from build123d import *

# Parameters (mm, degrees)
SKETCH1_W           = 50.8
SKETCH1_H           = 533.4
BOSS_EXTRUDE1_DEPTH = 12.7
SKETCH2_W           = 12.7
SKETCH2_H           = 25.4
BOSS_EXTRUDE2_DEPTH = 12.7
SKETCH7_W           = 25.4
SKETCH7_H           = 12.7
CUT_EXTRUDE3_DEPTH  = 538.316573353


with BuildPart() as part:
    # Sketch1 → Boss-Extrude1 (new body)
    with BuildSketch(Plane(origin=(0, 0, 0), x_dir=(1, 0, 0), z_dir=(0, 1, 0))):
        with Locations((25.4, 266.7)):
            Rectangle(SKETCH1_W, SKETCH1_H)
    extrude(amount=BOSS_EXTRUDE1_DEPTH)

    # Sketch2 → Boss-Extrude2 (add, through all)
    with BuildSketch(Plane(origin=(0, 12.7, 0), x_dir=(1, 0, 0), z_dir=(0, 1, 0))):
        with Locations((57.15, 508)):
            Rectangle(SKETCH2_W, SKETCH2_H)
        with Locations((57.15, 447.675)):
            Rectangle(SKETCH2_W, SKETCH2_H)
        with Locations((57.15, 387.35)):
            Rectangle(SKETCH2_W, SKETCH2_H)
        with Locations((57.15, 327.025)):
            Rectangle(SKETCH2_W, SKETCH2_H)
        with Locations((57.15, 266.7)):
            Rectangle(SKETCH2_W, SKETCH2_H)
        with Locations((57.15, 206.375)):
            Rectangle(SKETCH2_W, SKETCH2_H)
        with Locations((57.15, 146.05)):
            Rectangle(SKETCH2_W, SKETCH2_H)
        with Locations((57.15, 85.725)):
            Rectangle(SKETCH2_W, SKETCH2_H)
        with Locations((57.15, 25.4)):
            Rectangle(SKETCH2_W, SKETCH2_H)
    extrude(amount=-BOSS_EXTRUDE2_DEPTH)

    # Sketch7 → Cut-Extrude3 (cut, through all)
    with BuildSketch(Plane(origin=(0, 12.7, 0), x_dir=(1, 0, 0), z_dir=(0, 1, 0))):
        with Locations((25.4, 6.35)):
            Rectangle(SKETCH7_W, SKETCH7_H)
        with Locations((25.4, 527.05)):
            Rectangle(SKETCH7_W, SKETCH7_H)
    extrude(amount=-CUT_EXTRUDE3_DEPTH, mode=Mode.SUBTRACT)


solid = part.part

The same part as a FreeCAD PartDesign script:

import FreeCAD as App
import Part
import Sketcher
Q = App.Units.Quantity

doc = App.newDocument("Part")
body = doc.addObject("PartDesign::Body", "Body")

sketch1 = body.newObject("Sketcher::SketchObject", "Sketch")
sketch1.AttachmentSupport = (doc.getObject("XZ_Plane"), [""])
sketch1.MapMode = "FlatFace"
sketch1.addGeometry(Part.LineSegment(App.Vector(0, -533, 0), App.Vector(0, 0, 0)), False)
sketch1.addGeometry(Part.LineSegment(App.Vector(0, 0, 0), App.Vector(51, 0, 0)), False)
sketch1.addGeometry(Part.LineSegment(App.Vector(51, 0, 0), App.Vector(51, -533, 0)), False)
sketch1.addGeometry(Part.LineSegment(App.Vector(51, -533, 0), App.Vector(0, -533, 0)), False)
sketch1.addConstraint(Sketcher.Constraint("Coincident", 0, 2, 1, 1))
sketch1.addConstraint(Sketcher.Constraint("Coincident", 1, 2, 2, 1))
sketch1.addConstraint(Sketcher.Constraint("Coincident", 2, 2, 3, 1))
sketch1.addConstraint(Sketcher.Constraint("Coincident", 3, 2, 0, 1))
sketch1.addConstraint(Sketcher.Constraint("Vertical", 0))
sketch1.addConstraint(Sketcher.Constraint("Horizontal", 1))
sketch1.addConstraint(Sketcher.Constraint("Vertical", 2))
sketch1.addConstraint(Sketcher.Constraint("Horizontal", 3))
sketch1.addConstraint(Sketcher.Constraint("Coincident", 0, 2, -1, 1))
sketch1.addConstraint(Sketcher.Constraint("DistanceX", 1, 1, 1, 2, Q("2 in")))
sketch1.addConstraint(Sketcher.Constraint("DistanceY", 0, 1, 0, 2, Q("21 in")))
pad1 = body.newObject("PartDesign::Pad", "Pad")
pad1.Profile = sketch1
pad1.Length = Q("0.5 in")
pad1.Reversed = True

sketch2 = body.newObject("Sketcher::SketchObject", "Sketch001")
sketch2.AttachmentSupport = (doc.getObject("XZ_Plane"), [""])
sketch2.MapMode = "FlatFace"
sketch2.AttachmentOffset = App.Placement(App.Vector(0, 0, -0.5 * 25.4), App.Rotation())
sketch2.addGeometry(Part.LineSegment(App.Vector(51, -521, 0), App.Vector(51, -495, 0)), False)
sketch2.addGeometry(Part.LineSegment(App.Vector(51, -495, 0), App.Vector(64, -495, 0)), False)
sketch2.addGeometry(Part.LineSegment(App.Vector(64, -495, 0), App.Vector(64, -521, 0)), False)
sketch2.addGeometry(Part.LineSegment(App.Vector(64, -521, 0), App.Vector(51, -521, 0)), False)
sketch2.addGeometry(Part.LineSegment(App.Vector(51, -460, 0), App.Vector(51, -435, 0)), False)
sketch2.addGeometry(Part.LineSegment(App.Vector(51, -435, 0), App.Vector(64, -435, 0)), False)
sketch2.addGeometry(Part.LineSegment(App.Vector(64, -435, 0), App.Vector(64, -460, 0)), False)
sketch2.addGeometry(Part.LineSegment(App.Vector(64, -460, 0), App.Vector(51, -460, 0)), False)
sketch2.addGeometry(Part.LineSegment(App.Vector(51, -400, 0), App.Vector(51, -375, 0)), False)
sketch2.addGeometry(Part.LineSegment(App.Vector(51, -375, 0), App.Vector(64, -375, 0)), False)
sketch2.addGeometry(Part.LineSegment(App.Vector(64, -375, 0), App.Vector(64, -400, 0)), False)
sketch2.addGeometry(Part.LineSegment(App.Vector(64, -400, 0), App.Vector(51, -400, 0)), False)
sketch2.addGeometry(Part.LineSegment(App.Vector(51, -340, 0), App.Vector(51, -314, 0)), False)
sketch2.addGeometry(Part.LineSegment(App.Vector(51, -314, 0), App.Vector(64, -314, 0)), False)
sketch2.addGeometry(Part.LineSegment(App.Vector(64, -314, 0), App.Vector(64, -340, 0)), False)
sketch2.addGeometry(Part.LineSegment(App.Vector(64, -340, 0), App.Vector(51, -340, 0)), False)
sketch2.addGeometry(Part.LineSegment(App.Vector(51, -279, 0), App.Vector(51, -254, 0)), False)
sketch2.addGeometry(Part.LineSegment(App.Vector(51, -254, 0), App.Vector(64, -254, 0)), False)
sketch2.addGeometry(Part.LineSegment(App.Vector(64, -254, 0), App.Vector(64, -279, 0)), False)
sketch2.addGeometry(Part.LineSegment(App.Vector(64, -279, 0), App.Vector(51, -279, 0)), False)
sketch2.addGeometry(Part.LineSegment(App.Vector(51, -219, 0), App.Vector(51, -194, 0)), False)
sketch2.addGeometry(Part.LineSegment(App.Vector(51, -194, 0), App.Vector(64, -194, 0)), False)
sketch2.addGeometry(Part.LineSegment(App.Vector(64, -194, 0), App.Vector(64, -219, 0)), False)
sketch2.addGeometry(Part.LineSegment(App.Vector(64, -219, 0), App.Vector(51, -219, 0)), False)
sketch2.addGeometry(Part.LineSegment(App.Vector(51, -159, 0), App.Vector(51, -133, 0)), False)
sketch2.addGeometry(Part.LineSegment(App.Vector(51, -133, 0), App.Vector(64, -133, 0)), False)
sketch2.addGeometry(Part.LineSegment(App.Vector(64, -133, 0), App.Vector(64, -159, 0)), False)
sketch2.addGeometry(Part.LineSegment(App.Vector(64, -159, 0), App.Vector(51, -159, 0)), False)
sketch2.addGeometry(Part.LineSegment(App.Vector(51, -98, 0), App.Vector(51, -73, 0)), False)
sketch2.addGeometry(Part.LineSegment(App.Vector(51, -73, 0), App.Vector(64, -73, 0)), False)
sketch2.addGeometry(Part.LineSegment(App.Vector(64, -73, 0), App.Vector(64, -98, 0)), False)
sketch2.addGeometry(Part.LineSegment(App.Vector(64, -98, 0), App.Vector(51, -98, 0)), False)
sketch2.addGeometry(Part.LineSegment(App.Vector(51, -38, 0), App.Vector(51, -13, 0)), False)
sketch2.addGeometry(Part.LineSegment(App.Vector(51, -13, 0), App.Vector(64, -13, 0)), False)
sketch2.addGeometry(Part.LineSegment(App.Vector(64, -13, 0), App.Vector(64, -38, 0)), False)
sketch2.addGeometry(Part.LineSegment(App.Vector(64, -38, 0), App.Vector(51, -38, 0)), False)
sketch2.addConstraint(Sketcher.Constraint("Coincident", 0, 2, 1, 1))
sketch2.addConstraint(Sketcher.Constraint("Coincident", 1, 2, 2, 1))
sketch2.addConstraint(Sketcher.Constraint("Coincident", 2, 2, 3, 1))
sketch2.addConstraint(Sketcher.Constraint("Coincident", 3, 2, 0, 1))
sketch2.addConstraint(Sketcher.Constraint("Coincident", 4, 2, 5, 1))
sketch2.addConstraint(Sketcher.Constraint("Coincident", 5, 2, 6, 1))
sketch2.addConstraint(Sketcher.Constraint("Coincident", 6, 2, 7, 1))
sketch2.addConstraint(Sketcher.Constraint("Coincident", 7, 2, 4, 1))
sketch2.addConstraint(Sketcher.Constraint("Coincident", 8, 2, 9, 1))
sketch2.addConstraint(Sketcher.Constraint("Coincident", 9, 2, 10, 1))
sketch2.addConstraint(Sketcher.Constraint("Coincident", 10, 2, 11, 1))
sketch2.addConstraint(Sketcher.Constraint("Coincident", 11, 2, 8, 1))
sketch2.addConstraint(Sketcher.Constraint("Coincident", 12, 2, 13, 1))
sketch2.addConstraint(Sketcher.Constraint("Coincident", 13, 2, 14, 1))
sketch2.addConstraint(Sketcher.Constraint("Coincident", 14, 2, 15, 1))
sketch2.addConstraint(Sketcher.Constraint("Coincident", 15, 2, 12, 1))
sketch2.addConstraint(Sketcher.Constraint("Coincident", 16, 2, 17, 1))
sketch2.addConstraint(Sketcher.Constraint("Coincident", 17, 2, 18, 1))
sketch2.addConstraint(Sketcher.Constraint("Coincident", 18, 2, 19, 1))
sketch2.addConstraint(Sketcher.Constraint("Coincident", 19, 2, 16, 1))
sketch2.addConstraint(Sketcher.Constraint("Coincident", 20, 2, 21, 1))
sketch2.addConstraint(Sketcher.Constraint("Coincident", 21, 2, 22, 1))
sketch2.addConstraint(Sketcher.Constraint("Coincident", 22, 2, 23, 1))
sketch2.addConstraint(Sketcher.Constraint("Coincident", 23, 2, 20, 1))
sketch2.addConstraint(Sketcher.Constraint("Coincident", 24, 2, 25, 1))
sketch2.addConstraint(Sketcher.Constraint("Coincident", 25, 2, 26, 1))
sketch2.addConstraint(Sketcher.Constraint("Coincident", 26, 2, 27, 1))
sketch2.addConstraint(Sketcher.Constraint("Coincident", 27, 2, 24, 1))
sketch2.addConstraint(Sketcher.Constraint("Coincident", 28, 2, 29, 1))
sketch2.addConstraint(Sketcher.Constraint("Coincident", 29, 2, 30, 1))
sketch2.addConstraint(Sketcher.Constraint("Coincident", 30, 2, 31, 1))
sketch2.addConstraint(Sketcher.Constraint("Coincident", 31, 2, 28, 1))
sketch2.addConstraint(Sketcher.Constraint("Coincident", 32, 2, 33, 1))
sketch2.addConstraint(Sketcher.Constraint("Coincident", 33, 2, 34, 1))
sketch2.addConstraint(Sketcher.Constraint("Coincident", 34, 2, 35, 1))
sketch2.addConstraint(Sketcher.Constraint("Coincident", 35, 2, 32, 1))
sketch2.addConstraint(Sketcher.Constraint("Vertical", 0))
sketch2.addConstraint(Sketcher.Constraint("Horizontal", 1))
sketch2.addConstraint(Sketcher.Constraint("Vertical", 2))
sketch2.addConstraint(Sketcher.Constraint("Horizontal", 3))
sketch2.addConstraint(Sketcher.Constraint("Vertical", 4))
sketch2.addConstraint(Sketcher.Constraint("Horizontal", 5))
sketch2.addConstraint(Sketcher.Constraint("Vertical", 6))
sketch2.addConstraint(Sketcher.Constraint("Horizontal", 7))
sketch2.addConstraint(Sketcher.Constraint("Vertical", 8))
sketch2.addConstraint(Sketcher.Constraint("Horizontal", 9))
sketch2.addConstraint(Sketcher.Constraint("Vertical", 10))
sketch2.addConstraint(Sketcher.Constraint("Horizontal", 11))
sketch2.addConstraint(Sketcher.Constraint("Vertical", 12))
sketch2.addConstraint(Sketcher.Constraint("Horizontal", 13))
sketch2.addConstraint(Sketcher.Constraint("Vertical", 14))
sketch2.addConstraint(Sketcher.Constraint("Horizontal", 15))
sketch2.addConstraint(Sketcher.Constraint("Vertical", 16))
sketch2.addConstraint(Sketcher.Constraint("Horizontal", 17))
sketch2.addConstraint(Sketcher.Constraint("Vertical", 18))
sketch2.addConstraint(Sketcher.Constraint("Horizontal", 19))
sketch2.addConstraint(Sketcher.Constraint("Vertical", 20))
sketch2.addConstraint(Sketcher.Constraint("Horizontal", 21))
sketch2.addConstraint(Sketcher.Constraint("Vertical", 22))
sketch2.addConstraint(Sketcher.Constraint("Horizontal", 23))
sketch2.addConstraint(Sketcher.Constraint("Vertical", 24))
sketch2.addConstraint(Sketcher.Constraint("Horizontal", 25))
sketch2.addConstraint(Sketcher.Constraint("Vertical", 26))
sketch2.addConstraint(Sketcher.Constraint("Horizontal", 27))
sketch2.addConstraint(Sketcher.Constraint("Vertical", 28))
sketch2.addConstraint(Sketcher.Constraint("Horizontal", 29))
sketch2.addConstraint(Sketcher.Constraint("Vertical", 30))
sketch2.addConstraint(Sketcher.Constraint("Horizontal", 31))
sketch2.addConstraint(Sketcher.Constraint("Vertical", 32))
sketch2.addConstraint(Sketcher.Constraint("Horizontal", 33))
sketch2.addConstraint(Sketcher.Constraint("Vertical", 34))
sketch2.addConstraint(Sketcher.Constraint("Horizontal", 35))
sketch2.addConstraint(Sketcher.Constraint("Vertical", 3, 2, 4, 2))
sketch2.addConstraint(Sketcher.Constraint("Vertical", 2, 2, 5, 2))
sketch2.addConstraint(Sketcher.Constraint("Vertical", 7, 2, 8, 2))
sketch2.addConstraint(Sketcher.Constraint("Vertical", 6, 2, 9, 2))
sketch2.addConstraint(Sketcher.Constraint("Vertical", 11, 2, 12, 2))
sketch2.addConstraint(Sketcher.Constraint("Vertical", 10, 2, 13, 2))
sketch2.addConstraint(Sketcher.Constraint("Vertical", 15, 2, 16, 2))
sketch2.addConstraint(Sketcher.Constraint("Vertical", 14, 2, 17, 2))
sketch2.addConstraint(Sketcher.Constraint("Vertical", 19, 2, 20, 2))
sketch2.addConstraint(Sketcher.Constraint("Vertical", 18, 2, 21, 2))
sketch2.addConstraint(Sketcher.Constraint("Vertical", 23, 2, 24, 2))
sketch2.addConstraint(Sketcher.Constraint("Vertical", 22, 2, 25, 2))
sketch2.addConstraint(Sketcher.Constraint("Vertical", 27, 2, 28, 2))
sketch2.addConstraint(Sketcher.Constraint("Vertical", 26, 2, 29, 2))
sketch2.addConstraint(Sketcher.Constraint("Vertical", 31, 2, 32, 2))
sketch2.addConstraint(Sketcher.Constraint("Vertical", 30, 2, 33, 2))
sketch2.addConstraint(Sketcher.Constraint("Equal", 2, 4))
sketch2.addConstraint(Sketcher.Constraint("Equal", 6, 8))
sketch2.addConstraint(Sketcher.Constraint("Equal", 10, 12))
sketch2.addConstraint(Sketcher.Constraint("Equal", 14, 16))
sketch2.addConstraint(Sketcher.Constraint("Equal", 18, 20))
sketch2.addConstraint(Sketcher.Constraint("Equal", 22, 24))
sketch2.addConstraint(Sketcher.Constraint("Equal", 26, 28))
sketch2.addConstraint(Sketcher.Constraint("Equal", 30, 32))
sketch2.addConstraint(Sketcher.Constraint("DistanceY", 0, 1, 0, 2, Q("1 in")))
sketch2.addConstraint(Sketcher.Constraint("DistanceX", 1, 1, 1, 2, Q("0.5 in")))
sketch2.addConstraint(Sketcher.Constraint("DistanceX", -1, 1, 0, 2, Q("2 in")))
sketch2.addConstraint(Sketcher.Constraint("DistanceY", 16, 2, -1, 1, Q("10 in")))
sketch2.addConstraint(Sketcher.Constraint("DistanceY", 0, 2, -1, 1, Q("19.5 in")))
sketch2.addConstraint(Sketcher.Constraint("DistanceY", 32, 2, -1, 1, Q("0.5 in")))
sketch2.addConstraint(Sketcher.Constraint("DistanceY", 8, 2, -1, 1, Q("14.75 in")))
sketch2.addConstraint(Sketcher.Constraint("DistanceY", 24, 2, -1, 1, Q("5.25 in")))
sketch2.addConstraint(Sketcher.Constraint("DistanceY", 4, 2, 12, 2, Q("4.75 in")))
sketch2.addConstraint(Sketcher.Constraint("DistanceY", 12, 2, 20, 2, Q("4.75 in")))
sketch2.addConstraint(Sketcher.Constraint("DistanceY", 20, 2, 28, 2, Q("4.75 in")))
sketch2.addConstraint(Sketcher.Constraint("DistanceY", 4, 2, -1, 1, Q("17.125 in")))
pad2 = body.newObject("PartDesign::Pad", "Pad001")
pad2.Profile = sketch2
pad2.Length = Q("0.5 in")

sketch3 = body.newObject("Sketcher::SketchObject", "Sketch002")
sketch3.AttachmentSupport = (doc.getObject("XZ_Plane"), [""])
sketch3.MapMode = "FlatFace"
sketch3.AttachmentOffset = App.Placement(App.Vector(0, 0, -0.5 * 25.4), App.Rotation())
sketch3.addGeometry(Part.LineSegment(App.Vector(13, -13, 0), App.Vector(13, 0, 0)), False)
sketch3.addGeometry(Part.LineSegment(App.Vector(13, 0, 0), App.Vector(38, 0, 0)), False)
sketch3.addGeometry(Part.LineSegment(App.Vector(38, 0, 0), App.Vector(38, -13, 0)), False)
sketch3.addGeometry(Part.LineSegment(App.Vector(38, -13, 0), App.Vector(13, -13, 0)), False)
sketch3.addGeometry(Part.LineSegment(App.Vector(13, -533, 0), App.Vector(13, -521, 0)), False)
sketch3.addGeometry(Part.LineSegment(App.Vector(13, -521, 0), App.Vector(38, -521, 0)), False)
sketch3.addGeometry(Part.LineSegment(App.Vector(38, -521, 0), App.Vector(38, -533, 0)), False)
sketch3.addGeometry(Part.LineSegment(App.Vector(38, -533, 0), App.Vector(13, -533, 0)), False)
sketch3.addConstraint(Sketcher.Constraint("Coincident", 0, 2, 1, 1))
sketch3.addConstraint(Sketcher.Constraint("Coincident", 1, 2, 2, 1))
sketch3.addConstraint(Sketcher.Constraint("Coincident", 2, 2, 3, 1))
sketch3.addConstraint(Sketcher.Constraint("Coincident", 3, 2, 0, 1))
sketch3.addConstraint(Sketcher.Constraint("Coincident", 4, 2, 5, 1))
sketch3.addConstraint(Sketcher.Constraint("Coincident", 5, 2, 6, 1))
sketch3.addConstraint(Sketcher.Constraint("Coincident", 6, 2, 7, 1))
sketch3.addConstraint(Sketcher.Constraint("Coincident", 7, 2, 4, 1))
sketch3.addConstraint(Sketcher.Constraint("Vertical", 0))
sketch3.addConstraint(Sketcher.Constraint("Horizontal", 1))
sketch3.addConstraint(Sketcher.Constraint("Vertical", 2))
sketch3.addConstraint(Sketcher.Constraint("Horizontal", 3))
sketch3.addConstraint(Sketcher.Constraint("Vertical", 4))
sketch3.addConstraint(Sketcher.Constraint("Horizontal", 5))
sketch3.addConstraint(Sketcher.Constraint("Vertical", 6))
sketch3.addConstraint(Sketcher.Constraint("Horizontal", 7))
sketch3.addConstraint(Sketcher.Constraint("PointOnObject", 0, 2, -1))
sketch3.addConstraint(Sketcher.Constraint("Vertical", 3, 2, 4, 2))
sketch3.addConstraint(Sketcher.Constraint("Vertical", 2, 2, 5, 2))
sketch3.addConstraint(Sketcher.Constraint("Equal", 2, 4))
sketch3.addConstraint(Sketcher.Constraint("DistanceX", 1, 1, 1, 2, Q("1 in")))
sketch3.addConstraint(Sketcher.Constraint("DistanceY", 0, 1, 0, 2, Q("0.5 in")))
sketch3.addConstraint(Sketcher.Constraint("DistanceY", 6, 2, -1, 1, Q("21 in")))
sketch3.addConstraint(Sketcher.Constraint("DistanceX", -1, 1, 0, 2, Q("0.5 in")))
pocket1 = body.newObject("PartDesign::Pocket", "Pocket")
pocket1.Profile = sketch3
pocket1.Type = "ThroughAll"
pocket1.Reversed = True

doc.recompute()
